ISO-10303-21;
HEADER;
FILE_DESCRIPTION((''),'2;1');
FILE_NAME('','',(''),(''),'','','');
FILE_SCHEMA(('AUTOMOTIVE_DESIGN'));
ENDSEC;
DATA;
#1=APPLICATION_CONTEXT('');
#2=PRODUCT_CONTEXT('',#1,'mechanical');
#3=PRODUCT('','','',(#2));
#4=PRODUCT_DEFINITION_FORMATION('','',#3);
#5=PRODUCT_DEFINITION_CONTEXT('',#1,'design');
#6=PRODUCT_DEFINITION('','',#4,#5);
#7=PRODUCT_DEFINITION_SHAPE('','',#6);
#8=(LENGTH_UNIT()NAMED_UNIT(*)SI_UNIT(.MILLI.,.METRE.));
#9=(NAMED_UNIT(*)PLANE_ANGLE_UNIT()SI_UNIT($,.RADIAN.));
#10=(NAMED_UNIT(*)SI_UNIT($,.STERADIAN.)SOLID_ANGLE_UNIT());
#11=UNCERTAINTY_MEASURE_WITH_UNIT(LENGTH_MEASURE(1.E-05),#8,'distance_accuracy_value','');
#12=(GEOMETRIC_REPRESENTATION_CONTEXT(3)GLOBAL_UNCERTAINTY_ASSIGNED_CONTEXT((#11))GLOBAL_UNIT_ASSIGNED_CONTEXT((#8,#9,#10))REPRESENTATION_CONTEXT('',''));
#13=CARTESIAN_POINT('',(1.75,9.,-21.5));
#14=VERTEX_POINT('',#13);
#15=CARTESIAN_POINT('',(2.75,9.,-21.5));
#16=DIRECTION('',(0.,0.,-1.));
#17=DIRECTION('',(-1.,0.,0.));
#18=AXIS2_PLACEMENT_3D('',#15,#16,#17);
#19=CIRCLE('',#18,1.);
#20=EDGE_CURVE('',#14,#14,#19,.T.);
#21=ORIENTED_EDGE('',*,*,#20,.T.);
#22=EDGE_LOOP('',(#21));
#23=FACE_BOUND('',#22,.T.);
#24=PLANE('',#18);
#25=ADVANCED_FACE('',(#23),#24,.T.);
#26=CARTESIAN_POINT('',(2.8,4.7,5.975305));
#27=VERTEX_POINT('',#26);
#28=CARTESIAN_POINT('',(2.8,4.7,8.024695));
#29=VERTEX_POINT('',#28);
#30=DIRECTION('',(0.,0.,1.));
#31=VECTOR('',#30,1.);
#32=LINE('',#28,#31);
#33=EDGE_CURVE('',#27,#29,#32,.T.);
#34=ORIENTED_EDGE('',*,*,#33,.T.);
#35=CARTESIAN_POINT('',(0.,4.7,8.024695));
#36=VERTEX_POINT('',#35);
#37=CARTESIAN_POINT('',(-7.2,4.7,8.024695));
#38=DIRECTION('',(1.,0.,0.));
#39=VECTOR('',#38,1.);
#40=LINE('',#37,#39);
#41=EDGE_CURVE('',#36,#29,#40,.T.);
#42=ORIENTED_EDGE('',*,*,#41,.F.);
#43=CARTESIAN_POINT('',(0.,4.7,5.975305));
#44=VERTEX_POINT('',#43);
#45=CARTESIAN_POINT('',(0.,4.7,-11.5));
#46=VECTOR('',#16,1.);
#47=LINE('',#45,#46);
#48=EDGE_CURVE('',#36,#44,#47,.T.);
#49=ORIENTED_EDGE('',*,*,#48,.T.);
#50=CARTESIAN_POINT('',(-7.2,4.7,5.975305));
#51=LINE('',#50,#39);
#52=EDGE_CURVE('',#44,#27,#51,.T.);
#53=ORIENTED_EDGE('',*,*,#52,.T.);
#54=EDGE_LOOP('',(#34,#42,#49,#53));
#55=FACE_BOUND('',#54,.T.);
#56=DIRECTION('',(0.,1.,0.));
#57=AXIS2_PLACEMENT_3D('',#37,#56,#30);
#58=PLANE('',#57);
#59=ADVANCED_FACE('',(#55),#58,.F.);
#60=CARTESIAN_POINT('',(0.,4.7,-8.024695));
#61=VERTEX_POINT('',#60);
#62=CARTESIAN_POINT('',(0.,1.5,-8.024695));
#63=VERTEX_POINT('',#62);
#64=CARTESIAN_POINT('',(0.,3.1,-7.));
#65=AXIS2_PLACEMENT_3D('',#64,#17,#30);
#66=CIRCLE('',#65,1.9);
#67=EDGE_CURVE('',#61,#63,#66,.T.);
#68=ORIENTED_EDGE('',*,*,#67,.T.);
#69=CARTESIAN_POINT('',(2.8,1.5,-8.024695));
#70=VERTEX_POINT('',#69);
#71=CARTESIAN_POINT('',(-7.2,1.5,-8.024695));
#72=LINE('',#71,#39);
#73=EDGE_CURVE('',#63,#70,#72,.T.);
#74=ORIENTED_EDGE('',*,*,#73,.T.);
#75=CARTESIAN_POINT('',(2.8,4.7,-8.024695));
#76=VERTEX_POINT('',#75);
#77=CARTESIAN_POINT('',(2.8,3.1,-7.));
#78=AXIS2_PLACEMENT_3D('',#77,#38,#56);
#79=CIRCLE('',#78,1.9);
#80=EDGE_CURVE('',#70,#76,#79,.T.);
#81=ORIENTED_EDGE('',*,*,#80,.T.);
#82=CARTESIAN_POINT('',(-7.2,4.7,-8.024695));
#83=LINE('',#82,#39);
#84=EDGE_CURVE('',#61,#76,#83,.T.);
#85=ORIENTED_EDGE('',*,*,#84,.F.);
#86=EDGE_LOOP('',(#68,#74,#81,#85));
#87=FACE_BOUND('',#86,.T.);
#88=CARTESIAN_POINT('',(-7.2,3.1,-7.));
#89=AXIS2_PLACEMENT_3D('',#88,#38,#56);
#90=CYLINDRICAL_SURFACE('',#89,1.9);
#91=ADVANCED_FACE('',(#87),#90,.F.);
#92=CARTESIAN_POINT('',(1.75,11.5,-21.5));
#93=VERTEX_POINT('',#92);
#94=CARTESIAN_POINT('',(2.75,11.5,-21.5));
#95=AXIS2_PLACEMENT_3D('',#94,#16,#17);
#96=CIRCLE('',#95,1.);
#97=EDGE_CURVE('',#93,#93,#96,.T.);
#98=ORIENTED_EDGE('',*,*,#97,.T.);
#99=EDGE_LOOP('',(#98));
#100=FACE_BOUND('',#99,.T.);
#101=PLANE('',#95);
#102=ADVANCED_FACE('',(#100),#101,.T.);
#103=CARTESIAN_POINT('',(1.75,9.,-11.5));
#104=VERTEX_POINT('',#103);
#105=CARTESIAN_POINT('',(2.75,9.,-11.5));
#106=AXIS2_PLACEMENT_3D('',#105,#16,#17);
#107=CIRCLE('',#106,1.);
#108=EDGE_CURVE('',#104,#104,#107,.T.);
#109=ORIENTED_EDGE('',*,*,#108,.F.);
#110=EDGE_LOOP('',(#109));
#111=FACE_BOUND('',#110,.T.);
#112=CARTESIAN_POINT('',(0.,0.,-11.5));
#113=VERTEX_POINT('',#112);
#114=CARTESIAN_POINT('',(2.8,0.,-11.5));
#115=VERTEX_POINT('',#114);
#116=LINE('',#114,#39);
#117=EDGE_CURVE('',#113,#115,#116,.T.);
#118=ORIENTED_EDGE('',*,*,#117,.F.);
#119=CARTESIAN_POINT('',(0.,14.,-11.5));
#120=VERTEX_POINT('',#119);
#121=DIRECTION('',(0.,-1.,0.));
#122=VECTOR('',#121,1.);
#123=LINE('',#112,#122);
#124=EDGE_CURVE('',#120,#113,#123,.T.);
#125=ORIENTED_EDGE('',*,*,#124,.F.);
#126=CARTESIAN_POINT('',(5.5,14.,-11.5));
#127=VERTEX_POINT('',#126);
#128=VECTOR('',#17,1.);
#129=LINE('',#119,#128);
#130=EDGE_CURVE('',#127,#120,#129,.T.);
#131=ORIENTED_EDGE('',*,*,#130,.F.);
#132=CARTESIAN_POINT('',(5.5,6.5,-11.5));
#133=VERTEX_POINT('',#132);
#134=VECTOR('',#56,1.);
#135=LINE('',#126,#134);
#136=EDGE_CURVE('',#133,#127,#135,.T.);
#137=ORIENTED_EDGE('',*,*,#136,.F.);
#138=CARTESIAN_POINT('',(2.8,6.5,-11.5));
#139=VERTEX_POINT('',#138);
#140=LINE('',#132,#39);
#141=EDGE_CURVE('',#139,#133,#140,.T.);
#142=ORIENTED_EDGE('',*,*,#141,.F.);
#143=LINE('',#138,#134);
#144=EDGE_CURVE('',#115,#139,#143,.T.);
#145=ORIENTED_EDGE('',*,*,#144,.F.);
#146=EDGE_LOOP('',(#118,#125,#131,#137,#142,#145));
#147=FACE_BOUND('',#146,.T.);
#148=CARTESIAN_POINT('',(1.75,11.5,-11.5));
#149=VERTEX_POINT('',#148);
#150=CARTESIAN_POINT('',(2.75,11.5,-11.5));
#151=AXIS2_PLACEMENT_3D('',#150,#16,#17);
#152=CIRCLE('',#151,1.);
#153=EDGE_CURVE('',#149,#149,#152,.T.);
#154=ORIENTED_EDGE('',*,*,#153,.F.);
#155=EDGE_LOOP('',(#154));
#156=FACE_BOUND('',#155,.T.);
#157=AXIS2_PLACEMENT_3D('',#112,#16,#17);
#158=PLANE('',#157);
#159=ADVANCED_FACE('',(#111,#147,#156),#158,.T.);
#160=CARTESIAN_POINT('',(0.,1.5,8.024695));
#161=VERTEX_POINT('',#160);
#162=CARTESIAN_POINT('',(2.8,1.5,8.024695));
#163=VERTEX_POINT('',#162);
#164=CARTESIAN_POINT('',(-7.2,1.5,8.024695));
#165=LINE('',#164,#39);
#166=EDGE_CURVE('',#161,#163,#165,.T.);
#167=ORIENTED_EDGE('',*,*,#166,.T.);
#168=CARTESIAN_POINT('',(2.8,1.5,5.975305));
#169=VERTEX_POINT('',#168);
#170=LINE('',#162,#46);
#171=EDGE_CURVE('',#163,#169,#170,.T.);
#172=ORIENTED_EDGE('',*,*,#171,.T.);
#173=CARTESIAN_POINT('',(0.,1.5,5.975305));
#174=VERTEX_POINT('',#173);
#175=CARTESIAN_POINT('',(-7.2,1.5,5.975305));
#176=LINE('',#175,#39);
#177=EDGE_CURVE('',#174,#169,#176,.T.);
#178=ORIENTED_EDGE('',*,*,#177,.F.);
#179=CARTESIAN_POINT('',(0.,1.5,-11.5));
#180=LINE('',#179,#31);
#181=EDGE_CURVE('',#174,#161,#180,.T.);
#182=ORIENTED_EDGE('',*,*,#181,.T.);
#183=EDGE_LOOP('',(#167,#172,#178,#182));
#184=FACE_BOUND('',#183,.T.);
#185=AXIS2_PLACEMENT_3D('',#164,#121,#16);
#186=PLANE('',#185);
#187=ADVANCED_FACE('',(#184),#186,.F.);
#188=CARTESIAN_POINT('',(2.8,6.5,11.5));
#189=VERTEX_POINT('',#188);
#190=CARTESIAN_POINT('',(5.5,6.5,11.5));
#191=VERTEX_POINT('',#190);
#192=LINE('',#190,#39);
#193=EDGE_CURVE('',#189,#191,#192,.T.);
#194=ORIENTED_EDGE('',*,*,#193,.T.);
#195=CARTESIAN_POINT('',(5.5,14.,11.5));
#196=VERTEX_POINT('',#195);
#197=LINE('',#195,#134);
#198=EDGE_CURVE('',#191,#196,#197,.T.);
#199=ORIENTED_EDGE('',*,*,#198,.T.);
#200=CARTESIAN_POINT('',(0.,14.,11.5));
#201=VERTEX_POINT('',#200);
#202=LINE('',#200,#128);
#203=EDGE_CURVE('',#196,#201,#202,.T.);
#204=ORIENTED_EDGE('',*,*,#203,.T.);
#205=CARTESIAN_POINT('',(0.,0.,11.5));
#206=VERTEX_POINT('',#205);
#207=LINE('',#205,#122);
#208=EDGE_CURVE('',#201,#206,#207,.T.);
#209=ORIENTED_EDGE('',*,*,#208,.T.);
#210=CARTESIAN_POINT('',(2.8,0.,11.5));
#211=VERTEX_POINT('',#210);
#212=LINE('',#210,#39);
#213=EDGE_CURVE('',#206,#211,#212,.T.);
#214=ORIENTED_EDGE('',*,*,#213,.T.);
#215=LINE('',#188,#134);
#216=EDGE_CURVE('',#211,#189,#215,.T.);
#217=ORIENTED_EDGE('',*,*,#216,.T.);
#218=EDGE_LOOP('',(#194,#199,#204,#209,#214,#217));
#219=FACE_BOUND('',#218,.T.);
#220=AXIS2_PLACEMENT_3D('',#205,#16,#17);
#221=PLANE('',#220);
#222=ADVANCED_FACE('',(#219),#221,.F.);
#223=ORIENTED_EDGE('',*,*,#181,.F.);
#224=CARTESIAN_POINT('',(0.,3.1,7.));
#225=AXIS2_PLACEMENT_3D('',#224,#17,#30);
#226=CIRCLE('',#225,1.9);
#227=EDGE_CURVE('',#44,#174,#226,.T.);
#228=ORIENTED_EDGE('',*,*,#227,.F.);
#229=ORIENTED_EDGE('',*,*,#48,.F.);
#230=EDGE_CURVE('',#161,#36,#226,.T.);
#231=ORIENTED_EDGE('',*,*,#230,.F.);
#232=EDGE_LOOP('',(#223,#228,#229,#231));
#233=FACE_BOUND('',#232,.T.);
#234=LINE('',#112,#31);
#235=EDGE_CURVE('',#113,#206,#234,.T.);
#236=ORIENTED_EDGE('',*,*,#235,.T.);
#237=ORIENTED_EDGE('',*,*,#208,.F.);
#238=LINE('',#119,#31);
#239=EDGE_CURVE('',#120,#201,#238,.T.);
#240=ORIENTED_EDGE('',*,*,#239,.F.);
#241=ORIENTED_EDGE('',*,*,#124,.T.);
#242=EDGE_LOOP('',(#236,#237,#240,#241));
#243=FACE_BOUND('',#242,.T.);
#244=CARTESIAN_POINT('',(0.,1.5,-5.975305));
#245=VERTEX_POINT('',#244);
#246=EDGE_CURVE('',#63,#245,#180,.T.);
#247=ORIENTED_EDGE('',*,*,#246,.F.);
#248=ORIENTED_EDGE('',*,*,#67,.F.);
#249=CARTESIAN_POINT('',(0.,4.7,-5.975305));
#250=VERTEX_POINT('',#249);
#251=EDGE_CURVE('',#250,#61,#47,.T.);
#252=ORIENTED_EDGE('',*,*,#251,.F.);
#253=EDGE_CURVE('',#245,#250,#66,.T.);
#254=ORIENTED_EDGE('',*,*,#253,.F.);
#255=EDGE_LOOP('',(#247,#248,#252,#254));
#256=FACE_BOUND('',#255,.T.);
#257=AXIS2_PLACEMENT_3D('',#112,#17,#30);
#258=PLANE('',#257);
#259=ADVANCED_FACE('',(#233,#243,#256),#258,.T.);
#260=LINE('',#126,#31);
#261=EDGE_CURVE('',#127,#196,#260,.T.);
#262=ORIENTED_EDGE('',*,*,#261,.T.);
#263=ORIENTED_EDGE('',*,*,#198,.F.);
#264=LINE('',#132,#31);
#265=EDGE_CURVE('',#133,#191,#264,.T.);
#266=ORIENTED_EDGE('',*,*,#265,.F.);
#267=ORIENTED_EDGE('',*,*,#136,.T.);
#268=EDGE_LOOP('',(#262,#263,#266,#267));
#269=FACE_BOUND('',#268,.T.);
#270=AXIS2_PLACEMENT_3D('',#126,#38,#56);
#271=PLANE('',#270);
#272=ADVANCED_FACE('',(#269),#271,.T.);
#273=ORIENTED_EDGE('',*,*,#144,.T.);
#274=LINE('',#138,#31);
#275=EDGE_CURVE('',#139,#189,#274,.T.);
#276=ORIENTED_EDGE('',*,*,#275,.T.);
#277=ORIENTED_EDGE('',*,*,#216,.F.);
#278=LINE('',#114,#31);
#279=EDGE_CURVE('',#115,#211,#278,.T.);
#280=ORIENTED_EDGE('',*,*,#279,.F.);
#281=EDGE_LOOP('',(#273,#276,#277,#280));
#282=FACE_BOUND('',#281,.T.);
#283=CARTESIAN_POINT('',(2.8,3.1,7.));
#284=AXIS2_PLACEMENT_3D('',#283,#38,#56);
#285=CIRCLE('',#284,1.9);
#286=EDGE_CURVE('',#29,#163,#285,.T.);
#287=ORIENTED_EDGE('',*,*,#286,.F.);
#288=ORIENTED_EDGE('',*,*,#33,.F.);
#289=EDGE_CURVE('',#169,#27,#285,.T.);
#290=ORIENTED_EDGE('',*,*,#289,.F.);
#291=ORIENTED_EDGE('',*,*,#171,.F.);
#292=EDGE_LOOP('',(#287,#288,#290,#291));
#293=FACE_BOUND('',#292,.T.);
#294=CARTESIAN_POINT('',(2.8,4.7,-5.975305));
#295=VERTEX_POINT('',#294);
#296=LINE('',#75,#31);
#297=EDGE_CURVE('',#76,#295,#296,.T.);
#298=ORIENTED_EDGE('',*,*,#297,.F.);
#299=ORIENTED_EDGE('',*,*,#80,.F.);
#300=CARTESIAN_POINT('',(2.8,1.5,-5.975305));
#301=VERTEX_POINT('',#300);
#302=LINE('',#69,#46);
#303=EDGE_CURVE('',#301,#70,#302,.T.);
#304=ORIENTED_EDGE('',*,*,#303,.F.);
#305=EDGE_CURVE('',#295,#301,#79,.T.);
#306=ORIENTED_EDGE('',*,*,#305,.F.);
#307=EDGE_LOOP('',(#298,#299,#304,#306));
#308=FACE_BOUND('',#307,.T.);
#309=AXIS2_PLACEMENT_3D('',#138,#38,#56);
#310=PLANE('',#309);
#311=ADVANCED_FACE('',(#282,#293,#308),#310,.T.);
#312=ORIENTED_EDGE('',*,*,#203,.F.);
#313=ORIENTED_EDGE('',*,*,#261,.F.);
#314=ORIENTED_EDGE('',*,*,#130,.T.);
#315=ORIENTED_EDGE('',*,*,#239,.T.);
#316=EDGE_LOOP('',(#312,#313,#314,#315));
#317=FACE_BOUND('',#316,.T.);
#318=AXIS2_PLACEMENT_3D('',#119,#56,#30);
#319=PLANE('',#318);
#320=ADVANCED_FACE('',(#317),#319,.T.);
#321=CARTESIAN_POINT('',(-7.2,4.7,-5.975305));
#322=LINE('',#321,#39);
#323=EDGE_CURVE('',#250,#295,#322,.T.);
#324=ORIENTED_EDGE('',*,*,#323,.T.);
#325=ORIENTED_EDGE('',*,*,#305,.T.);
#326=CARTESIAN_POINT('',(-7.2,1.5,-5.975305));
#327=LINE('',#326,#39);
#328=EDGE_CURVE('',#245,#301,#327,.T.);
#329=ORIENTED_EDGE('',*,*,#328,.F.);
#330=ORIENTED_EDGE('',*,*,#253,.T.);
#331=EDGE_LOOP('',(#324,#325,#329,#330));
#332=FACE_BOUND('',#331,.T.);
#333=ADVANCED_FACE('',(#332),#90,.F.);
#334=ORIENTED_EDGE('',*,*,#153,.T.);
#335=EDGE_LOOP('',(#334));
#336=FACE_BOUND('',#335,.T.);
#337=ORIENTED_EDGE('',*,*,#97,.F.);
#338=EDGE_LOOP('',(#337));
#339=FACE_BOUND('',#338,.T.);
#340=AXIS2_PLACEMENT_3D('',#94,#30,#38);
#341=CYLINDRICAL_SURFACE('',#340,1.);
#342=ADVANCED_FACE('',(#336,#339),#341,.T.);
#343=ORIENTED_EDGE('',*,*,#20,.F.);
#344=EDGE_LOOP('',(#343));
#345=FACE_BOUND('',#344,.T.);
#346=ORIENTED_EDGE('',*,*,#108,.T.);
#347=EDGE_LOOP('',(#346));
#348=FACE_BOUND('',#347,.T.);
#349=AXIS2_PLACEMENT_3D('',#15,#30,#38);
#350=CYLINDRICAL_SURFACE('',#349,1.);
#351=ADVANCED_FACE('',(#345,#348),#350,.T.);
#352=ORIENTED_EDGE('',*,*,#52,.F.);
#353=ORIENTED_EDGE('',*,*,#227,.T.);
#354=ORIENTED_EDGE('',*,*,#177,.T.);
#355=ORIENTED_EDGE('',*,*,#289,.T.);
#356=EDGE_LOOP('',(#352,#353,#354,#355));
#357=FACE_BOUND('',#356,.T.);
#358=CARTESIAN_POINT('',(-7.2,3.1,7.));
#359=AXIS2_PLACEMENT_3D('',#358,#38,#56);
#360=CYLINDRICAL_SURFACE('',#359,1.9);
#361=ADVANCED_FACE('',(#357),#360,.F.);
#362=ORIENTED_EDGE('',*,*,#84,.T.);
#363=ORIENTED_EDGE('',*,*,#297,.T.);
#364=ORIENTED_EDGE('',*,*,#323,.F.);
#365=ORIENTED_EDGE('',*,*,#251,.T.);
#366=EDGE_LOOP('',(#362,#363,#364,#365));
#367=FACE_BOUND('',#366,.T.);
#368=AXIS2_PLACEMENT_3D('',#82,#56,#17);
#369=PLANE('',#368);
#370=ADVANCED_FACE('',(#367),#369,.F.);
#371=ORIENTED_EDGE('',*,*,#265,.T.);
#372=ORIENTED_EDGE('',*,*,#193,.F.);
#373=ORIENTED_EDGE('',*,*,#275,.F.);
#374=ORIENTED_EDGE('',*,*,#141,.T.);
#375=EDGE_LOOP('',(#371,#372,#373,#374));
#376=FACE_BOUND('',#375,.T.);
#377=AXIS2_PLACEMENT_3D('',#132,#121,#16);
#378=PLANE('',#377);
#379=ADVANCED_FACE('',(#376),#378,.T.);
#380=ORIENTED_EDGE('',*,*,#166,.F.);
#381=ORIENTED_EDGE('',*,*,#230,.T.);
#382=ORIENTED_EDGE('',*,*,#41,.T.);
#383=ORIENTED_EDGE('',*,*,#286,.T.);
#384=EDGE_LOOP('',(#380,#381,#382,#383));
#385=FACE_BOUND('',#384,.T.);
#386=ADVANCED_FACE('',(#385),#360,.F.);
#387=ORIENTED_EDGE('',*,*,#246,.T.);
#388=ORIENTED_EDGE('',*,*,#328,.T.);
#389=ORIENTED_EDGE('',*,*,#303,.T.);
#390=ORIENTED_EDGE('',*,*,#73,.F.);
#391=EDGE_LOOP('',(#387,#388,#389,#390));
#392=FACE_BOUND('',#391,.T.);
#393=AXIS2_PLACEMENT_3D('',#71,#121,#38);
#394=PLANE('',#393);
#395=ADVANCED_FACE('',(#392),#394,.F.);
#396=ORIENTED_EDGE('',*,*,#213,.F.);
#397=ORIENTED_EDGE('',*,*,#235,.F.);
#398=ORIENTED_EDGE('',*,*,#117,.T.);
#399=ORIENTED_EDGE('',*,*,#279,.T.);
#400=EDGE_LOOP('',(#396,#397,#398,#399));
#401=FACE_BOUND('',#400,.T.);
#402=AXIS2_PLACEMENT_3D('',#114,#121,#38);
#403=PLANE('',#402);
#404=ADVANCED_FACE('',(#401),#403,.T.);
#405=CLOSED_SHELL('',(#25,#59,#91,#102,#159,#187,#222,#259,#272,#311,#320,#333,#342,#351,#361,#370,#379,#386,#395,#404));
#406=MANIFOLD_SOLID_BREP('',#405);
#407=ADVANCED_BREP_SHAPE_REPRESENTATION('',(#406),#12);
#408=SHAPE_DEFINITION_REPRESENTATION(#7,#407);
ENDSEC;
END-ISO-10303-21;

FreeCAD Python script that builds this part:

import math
import FreeCAD as App
import Part
import Sketcher
Q = App.Units.Quantity


def add_polygon(sketch, points):
    """Adds a closed chain of lines whose ends are joined by coincident constraints."""
    first, n = sketch.GeometryCount, len(points)
    for a, b in zip(points, points[1:] + points[:1]):
        sketch.addGeometry(Part.LineSegment(App.Vector(*a, 0), App.Vector(*b, 0)), False)
    for i in range(n):
        sketch.addConstraint(Sketcher.Constraint("Coincident", first + i, 2, first + (i + 1) % n, 1))

doc = App.newDocument("Part")
body = doc.addObject("PartDesign::Body", "Body")

# Sketch on XY plane
sketch1 = doc.addObject("Sketcher::SketchObject", "Sketch")
body.addObject(sketch1)
sketch1.AttachmentSupport = (doc.XY_Plane, [""])
sketch1.MapMode = "FlatFace"
add_polygon(sketch1, [(0, 14), (0, 0), (2.8, 0), (2.8, 6.5), (5.5, 6.5), (5.5, 14)])  # lines 0-5
sketch1.addConstraint([
    Sketcher.Constraint("Vertical", 0),
    Sketcher.Constraint("Horizontal", 1),
    Sketcher.Constraint("Vertical", 2),
    Sketcher.Constraint("Horizontal", 3),
    Sketcher.Constraint("Vertical", 4),
    Sketcher.Constraint("Horizontal", 5),
    Sketcher.Constraint("Coincident", 0, 2, -1, 1),
    Sketcher.Constraint("DistanceY", 0, 2, 0, 1, Q("14 mm")),
    Sketcher.Constraint("DistanceX", 1, 1, 1, 2, Q("2.8 mm")),
    Sketcher.Constraint("DistanceX", 3, 1, 3, 2, Q("2.7 mm")),
    Sketcher.Constraint("DistanceY", 2, 1, 2, 2, Q("6.5 mm")),
])
pad1 = doc.addObject("PartDesign::Pad", "Pad")
body.addObject(pad1)
pad1.Profile = sketch1
pad1.Length = 23
pad1.Midplane = True

# Sketch on XY plane
sketch2 = doc.addObject("Sketcher::SketchObject", "Sketch001")
body.addObject(sketch2)
sketch2.AttachmentSupport = (doc.XY_Plane, [""])
sketch2.MapMode = "FlatFace"
sketch2.AttachmentOffset = App.Placement(App.Vector(0, 0, -11.5), App.Rotation())
sketch2.addGeometry([
    Part.Circle(App.Vector(2.75, 11.5, 0), App.Vector(0, 0, 1), 1),
    Part.Circle(App.Vector(2.75, 9, 0), App.Vector(0, 0, 1), 1),
], False)
sketch2.addConstraint([
    Sketcher.Constraint("Equal", 0, 1),
    Sketcher.Constraint("Vertical", 0, 3, 1, 3),
    Sketcher.Constraint("Diameter", 0, Q("2 mm")),
    Sketcher.Constraint("DistanceY", -1, 1, 1, 3, Q("9 mm")),
    Sketcher.Constraint("DistanceY", -1, 1, 0, 3, Q("11.5 mm")),
    Sketcher.Constraint("DistanceX", -1, 1, 0, 3, Q("2.75 mm")),
])
pad2 = doc.addObject("PartDesign::Pad", "Pad001")
body.addObject(pad2)
pad2.Profile = sketch2
pad2.Length = 10
pad2.Reversed = True

# Sketch on YZ plane
sketch3 = doc.addObject("Sketcher::SketchObject", "Sketch002")
body.addObject(sketch3)
sketch3.AttachmentSupport = (doc.YZ_Plane, [""])
sketch3.MapMode = "FlatFace"
sketch3.AttachmentOffset = App.Placement(App.Vector(0, 0, 2.8), App.Rotation())
sketch3.addGeometry([
    Part.LineSegment(App.Vector(1.5, 8.024695, 0), App.Vector(1.5, 5.975305, 0)),  # 0
    Part.ArcOfCircle(Part.Circle(App.Vector(3.1, 7, 0), App.Vector(0, 0, 1), 1.9), math.radians(-147.363102), math.radians(-32.636898)),  # 1
    Part.LineSegment(App.Vector(4.7, 5.975305, 0), App.Vector(4.7, 8.024695, 0)),  # 2
    Part.ArcOfCircle(Part.Circle(App.Vector(3.1, 7, 0), App.Vector(0, 0, 1), 1.9), math.radians(32.636898), math.radians(147.363102)),  # 3
    Part.LineSegment(App.Vector(1.5, -5.975305, 0), App.Vector(1.5, -8.024695, 0)),  # 4
    Part.ArcOfCircle(Part.Circle(App.Vector(3.1, -7, 0), App.Vector(0, 0, 1), 1.9), math.radians(-147.363102), math.radians(-32.636898)),  # 5
    Part.LineSegment(App.Vector(4.7, -8.024695, 0), App.Vector(4.7, -5.975305, 0)),  # 6
    Part.ArcOfCircle(Part.Circle(App.Vector(3.1, -7, 0), App.Vector(0, 0, 1), 1.9), math.radians(32.636898), math.radians(147.363102)),  # 7
], False)
sketch3.addConstraint([
    Sketcher.Constraint("Coincident", 0, 2, 1, 1),
    Sketcher.Constraint("Coincident", 1, 2, 2, 1),
    Sketcher.Constraint("Coincident", 2, 2, 3, 1),
    Sketcher.Constraint("Coincident", 3, 2, 0, 1),
    Sketcher.Constraint("Coincident", 4, 2, 5, 1),
    Sketcher.Constraint("Coincident", 5, 2, 6, 1),
    Sketcher.Constraint("Coincident", 6, 2, 7, 1),
    Sketcher.Constraint("Coincident", 7, 2, 4, 1),
    Sketcher.Constraint("Vertical", 0),
    Sketcher.Constraint("Vertical", 2),
    Sketcher.Constraint("Vertical", 4),
    Sketcher.Constraint("Vertical", 6),
    Sketcher.Constraint("Coincident", 3, 3, 1, 3),
    Sketcher.Constraint("Coincident", 7, 3, 5, 3),
    Sketcher.Constraint("Equal", 1, 3),
    Sketcher.Constraint("Equal", 3, 5),
    Sketcher.Constraint("Equal", 5, 7),
    Sketcher.Constraint("Symmetric", 1, 3, 5, 3, -1),
    Sketcher.Constraint("Horizontal", 0, 2, 1, 2),
    Sketcher.Constraint("Horizontal", 4, 2, 5, 2),
    Sketcher.Constraint("Vertical", 3, 2, 4, 2),
    Sketcher.Constraint("Radius", 1, Q("1.9 mm")),
    Sketcher.Constraint("DistanceY", -1, 1, 1, 3, Q("7 mm")),
    Sketcher.Constraint("DistanceX", -1, 1, 1, 3, Q("3.1 mm")),
    Sketcher.Constraint("DistanceX", -1, 1, 0, 2, Q("1.5 mm")),
])
pocket1 = doc.addObject("PartDesign::Pocket", "Pocket")
body.addObject(pocket1)
pocket1.Profile = sketch3
pocket1.Length = 10

doc.recompute()
